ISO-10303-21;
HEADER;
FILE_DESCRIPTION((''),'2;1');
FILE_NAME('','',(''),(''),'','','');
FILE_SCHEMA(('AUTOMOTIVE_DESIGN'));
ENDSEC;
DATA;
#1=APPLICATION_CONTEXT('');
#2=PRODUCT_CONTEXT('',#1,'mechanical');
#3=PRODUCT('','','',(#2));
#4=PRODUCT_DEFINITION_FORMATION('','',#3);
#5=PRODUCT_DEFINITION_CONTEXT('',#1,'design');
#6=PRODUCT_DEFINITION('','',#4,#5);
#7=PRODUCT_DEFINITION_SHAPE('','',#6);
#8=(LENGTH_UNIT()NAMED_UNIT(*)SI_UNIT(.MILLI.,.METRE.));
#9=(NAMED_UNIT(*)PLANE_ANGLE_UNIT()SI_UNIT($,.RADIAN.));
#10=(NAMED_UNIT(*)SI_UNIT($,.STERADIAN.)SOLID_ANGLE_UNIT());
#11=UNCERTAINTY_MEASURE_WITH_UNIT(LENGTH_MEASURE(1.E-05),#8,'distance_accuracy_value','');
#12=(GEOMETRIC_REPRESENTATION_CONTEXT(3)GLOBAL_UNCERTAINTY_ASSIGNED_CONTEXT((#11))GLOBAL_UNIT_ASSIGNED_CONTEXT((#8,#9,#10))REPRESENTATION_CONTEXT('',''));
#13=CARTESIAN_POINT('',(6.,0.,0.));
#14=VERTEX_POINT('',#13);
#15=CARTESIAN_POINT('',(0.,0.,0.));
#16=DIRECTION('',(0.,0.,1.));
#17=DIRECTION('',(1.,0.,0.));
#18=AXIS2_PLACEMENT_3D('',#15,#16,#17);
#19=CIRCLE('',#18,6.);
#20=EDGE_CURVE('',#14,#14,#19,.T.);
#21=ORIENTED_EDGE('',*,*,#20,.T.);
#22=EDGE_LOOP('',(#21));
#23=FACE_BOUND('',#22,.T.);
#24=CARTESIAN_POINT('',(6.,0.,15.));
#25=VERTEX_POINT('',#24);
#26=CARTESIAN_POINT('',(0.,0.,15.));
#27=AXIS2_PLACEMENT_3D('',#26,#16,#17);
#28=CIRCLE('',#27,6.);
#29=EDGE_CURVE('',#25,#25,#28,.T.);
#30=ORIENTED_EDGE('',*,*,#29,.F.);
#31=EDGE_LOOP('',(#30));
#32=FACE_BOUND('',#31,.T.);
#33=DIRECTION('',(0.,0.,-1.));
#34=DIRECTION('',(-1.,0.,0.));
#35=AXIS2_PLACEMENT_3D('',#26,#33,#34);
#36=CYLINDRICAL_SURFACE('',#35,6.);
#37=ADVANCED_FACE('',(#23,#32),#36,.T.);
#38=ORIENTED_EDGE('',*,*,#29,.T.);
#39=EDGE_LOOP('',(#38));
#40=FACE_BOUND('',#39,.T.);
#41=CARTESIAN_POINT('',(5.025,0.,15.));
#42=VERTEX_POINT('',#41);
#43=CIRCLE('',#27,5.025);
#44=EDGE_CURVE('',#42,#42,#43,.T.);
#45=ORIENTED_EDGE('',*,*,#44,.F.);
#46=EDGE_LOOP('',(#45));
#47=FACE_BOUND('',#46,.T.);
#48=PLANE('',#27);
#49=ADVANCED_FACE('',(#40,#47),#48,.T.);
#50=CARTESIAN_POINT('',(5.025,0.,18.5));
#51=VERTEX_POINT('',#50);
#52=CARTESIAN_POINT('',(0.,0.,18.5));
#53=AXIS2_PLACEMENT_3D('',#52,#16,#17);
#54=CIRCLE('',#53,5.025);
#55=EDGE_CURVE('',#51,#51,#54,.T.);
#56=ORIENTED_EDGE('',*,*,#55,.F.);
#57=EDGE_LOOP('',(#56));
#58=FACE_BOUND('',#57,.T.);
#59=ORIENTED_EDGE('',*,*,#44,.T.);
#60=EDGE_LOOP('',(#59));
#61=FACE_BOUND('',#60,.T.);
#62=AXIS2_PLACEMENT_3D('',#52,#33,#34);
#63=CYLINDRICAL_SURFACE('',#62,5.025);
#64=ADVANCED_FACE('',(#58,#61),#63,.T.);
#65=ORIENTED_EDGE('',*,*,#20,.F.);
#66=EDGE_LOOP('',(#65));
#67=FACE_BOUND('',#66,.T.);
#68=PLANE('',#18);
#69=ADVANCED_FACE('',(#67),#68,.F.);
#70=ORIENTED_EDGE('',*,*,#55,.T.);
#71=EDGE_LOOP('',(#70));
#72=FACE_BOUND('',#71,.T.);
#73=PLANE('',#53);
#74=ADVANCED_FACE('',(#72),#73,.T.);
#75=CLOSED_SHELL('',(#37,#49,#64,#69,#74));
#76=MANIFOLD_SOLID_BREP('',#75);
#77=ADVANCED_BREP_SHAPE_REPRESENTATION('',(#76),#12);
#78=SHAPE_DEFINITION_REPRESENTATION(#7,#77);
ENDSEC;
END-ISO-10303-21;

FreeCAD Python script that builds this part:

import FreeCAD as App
import Part
import Sketcher

V = App.Vector

doc = App.newDocument("Part")
body = doc.addObject("PartDesign::Body", "Body")

# Sketch on XY plane
sketch1 = doc.addObject("Sketcher::SketchObject", "Sketch")
body.addObject(sketch1)
sketch1.AttachmentSupport = (doc.XY_Plane, [""])
sketch1.MapMode = "FlatFace"
sketch1.addGeometry(Part.Circle(V(0, 0, 0), V(0, 0, 1), 6), False)
sketch1.addConstraint([
    Sketcher.Constraint("Coincident", 0, 3, -1, 1),
    Sketcher.Constraint("Diameter", 0, 12.0),
])
pad1 = doc.addObject("PartDesign::Pad", "Pad")
body.addObject(pad1)
pad1.Profile = sketch1
pad1.Length = 15

# Sketch on XY plane
sketch2 = doc.addObject("Sketcher::SketchObject", "Sketch001")
body.addObject(sketch2)
sketch2.AttachmentSupport = (doc.XY_Plane, [""])
sketch2.MapMode = "FlatFace"
sketch2.AttachmentOffset = App.Placement(V(0, 0, 15), App.Rotation())
sketch2.addGeometry(Part.Circle(V(0, 0, 0), V(0, 0, 1), 5), False)
sketch2.addConstraint([
    Sketcher.Constraint("Coincident", 0, 3, -1, 1),
    Sketcher.Constraint("Diameter", 0, 10.05),
])
pad2 = doc.addObject("PartDesign::Pad", "Pad001")
body.addObject(pad2)
pad2.Profile = sketch2
pad2.Length = 3.5

doc.recompute()
